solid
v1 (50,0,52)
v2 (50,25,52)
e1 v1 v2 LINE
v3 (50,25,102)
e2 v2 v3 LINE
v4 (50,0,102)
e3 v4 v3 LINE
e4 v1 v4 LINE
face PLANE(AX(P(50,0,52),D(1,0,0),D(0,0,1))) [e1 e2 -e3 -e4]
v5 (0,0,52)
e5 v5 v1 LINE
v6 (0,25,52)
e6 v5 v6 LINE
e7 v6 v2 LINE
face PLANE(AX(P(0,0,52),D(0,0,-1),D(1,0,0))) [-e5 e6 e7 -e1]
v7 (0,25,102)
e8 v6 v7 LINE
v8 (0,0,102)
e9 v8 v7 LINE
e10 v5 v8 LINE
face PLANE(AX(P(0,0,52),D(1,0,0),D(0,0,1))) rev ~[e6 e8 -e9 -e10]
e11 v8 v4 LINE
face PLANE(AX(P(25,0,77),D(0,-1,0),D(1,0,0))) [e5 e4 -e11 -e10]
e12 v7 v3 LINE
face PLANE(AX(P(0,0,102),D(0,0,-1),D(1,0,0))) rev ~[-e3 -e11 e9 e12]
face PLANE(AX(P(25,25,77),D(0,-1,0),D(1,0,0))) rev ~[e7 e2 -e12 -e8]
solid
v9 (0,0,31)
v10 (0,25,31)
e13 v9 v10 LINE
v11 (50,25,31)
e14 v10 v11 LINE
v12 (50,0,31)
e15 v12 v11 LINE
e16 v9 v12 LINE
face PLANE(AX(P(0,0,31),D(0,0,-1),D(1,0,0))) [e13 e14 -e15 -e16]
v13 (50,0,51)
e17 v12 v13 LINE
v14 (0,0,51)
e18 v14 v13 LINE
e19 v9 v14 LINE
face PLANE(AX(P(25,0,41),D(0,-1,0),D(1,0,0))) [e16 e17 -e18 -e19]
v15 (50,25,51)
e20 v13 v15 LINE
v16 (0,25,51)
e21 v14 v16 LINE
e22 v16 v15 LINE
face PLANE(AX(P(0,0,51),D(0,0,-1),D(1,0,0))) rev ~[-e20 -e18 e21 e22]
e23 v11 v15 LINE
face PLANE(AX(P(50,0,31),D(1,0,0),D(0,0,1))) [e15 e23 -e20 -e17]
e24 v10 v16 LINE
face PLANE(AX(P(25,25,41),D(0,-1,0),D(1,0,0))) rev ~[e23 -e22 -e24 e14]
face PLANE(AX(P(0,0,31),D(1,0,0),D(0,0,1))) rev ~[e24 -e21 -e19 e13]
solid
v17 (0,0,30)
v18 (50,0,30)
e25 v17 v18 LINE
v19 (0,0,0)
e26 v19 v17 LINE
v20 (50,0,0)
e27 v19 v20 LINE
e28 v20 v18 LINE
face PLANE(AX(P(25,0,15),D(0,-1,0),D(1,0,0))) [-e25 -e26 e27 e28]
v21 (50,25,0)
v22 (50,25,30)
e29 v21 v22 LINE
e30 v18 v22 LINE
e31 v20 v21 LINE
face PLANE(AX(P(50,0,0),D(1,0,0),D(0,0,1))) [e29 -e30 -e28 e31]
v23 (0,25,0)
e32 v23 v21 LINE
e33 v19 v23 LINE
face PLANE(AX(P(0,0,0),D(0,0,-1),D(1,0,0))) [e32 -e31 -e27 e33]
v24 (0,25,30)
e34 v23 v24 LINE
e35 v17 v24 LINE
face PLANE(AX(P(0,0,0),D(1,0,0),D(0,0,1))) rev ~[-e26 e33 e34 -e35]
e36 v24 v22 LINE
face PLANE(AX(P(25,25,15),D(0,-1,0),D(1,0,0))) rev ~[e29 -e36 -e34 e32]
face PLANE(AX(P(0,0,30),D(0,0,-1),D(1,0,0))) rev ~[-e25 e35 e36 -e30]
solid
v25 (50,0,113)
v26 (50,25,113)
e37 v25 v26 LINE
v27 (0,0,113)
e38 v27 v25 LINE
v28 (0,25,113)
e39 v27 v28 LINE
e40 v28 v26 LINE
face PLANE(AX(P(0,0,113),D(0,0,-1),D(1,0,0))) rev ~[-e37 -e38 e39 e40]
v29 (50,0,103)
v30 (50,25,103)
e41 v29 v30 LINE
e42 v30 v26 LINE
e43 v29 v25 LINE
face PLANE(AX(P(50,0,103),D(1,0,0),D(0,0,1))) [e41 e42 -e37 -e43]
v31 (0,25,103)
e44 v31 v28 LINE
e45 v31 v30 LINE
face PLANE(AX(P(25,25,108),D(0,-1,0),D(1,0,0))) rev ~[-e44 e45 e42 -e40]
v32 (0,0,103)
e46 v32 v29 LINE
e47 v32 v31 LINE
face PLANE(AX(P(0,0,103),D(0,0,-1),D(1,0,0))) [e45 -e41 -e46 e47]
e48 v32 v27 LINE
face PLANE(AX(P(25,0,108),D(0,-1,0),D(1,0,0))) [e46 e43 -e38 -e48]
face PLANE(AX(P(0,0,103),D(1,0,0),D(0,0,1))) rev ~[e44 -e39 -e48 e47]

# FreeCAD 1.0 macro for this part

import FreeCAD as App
import Part
import Sketcher
from FreeCAD import Vector


def add_polygon(sketch, points):
    """Adds a closed chain of lines whose ends are joined by coincident constraints."""
    first, n = sketch.GeometryCount, len(points)
    for a, b in zip(points, points[1:] + points[:1]):
        sketch.addGeometry(Part.LineSegment(App.Vector(*a, 0), App.Vector(*b, 0)), False)
    for i in range(n):
        sketch.addConstraint(Sketcher.Constraint("Coincident", first + i, 2, first + (i + 1) % n, 1))

doc = App.newDocument("Part")
body = doc.addObject("PartDesign::Body", "Body")
body.AllowCompound = True

sketch1 = body.newObject("Sketcher::SketchObject", "Sketch")
sketch1.AttachmentSupport = (doc.getObject("XZ_Plane"), [""])
sketch1.MapMode = "FlatFace"
add_polygon(sketch1, [(0, 30), (0, 0), (50, 0), (50, 30)])
add_polygon(sketch1, [(0, 51), (0, 31), (50, 31), (50, 51)])
add_polygon(sketch1, [(0, 102), (0, 52), (50, 52), (50, 102)])
add_polygon(sketch1, [(0, 113), (0, 103), (50, 103), (50, 113)])
sketch1.addConstraint(Sketcher.Constraint("Vertical", 0))
sketch1.addConstraint(Sketcher.Constraint("Horizontal", 1))
sketch1.addConstraint(Sketcher.Constraint("Vertical", 2))
sketch1.addConstraint(Sketcher.Constraint("Horizontal", 3))
sketch1.addConstraint(Sketcher.Constraint("Vertical", 4))
sketch1.addConstraint(Sketcher.Constraint("Horizontal", 5))
sketch1.addConstraint(Sketcher.Constraint("Vertical", 6))
sketch1.addConstraint(Sketcher.Constraint("Horizontal", 7))
sketch1.addConstraint(Sketcher.Constraint("Vertical", 8))
sketch1.addConstraint(Sketcher.Constraint("Horizontal", 9))
sketch1.addConstraint(Sketcher.Constraint("Vertical", 10))
sketch1.addConstraint(Sketcher.Constraint("Horizontal", 11))
sketch1.addConstraint(Sketcher.Constraint("Vertical", 12))
sketch1.addConstraint(Sketcher.Constraint("Horizontal", 13))
sketch1.addConstraint(Sketcher.Constraint("Vertical", 14))
sketch1.addConstraint(Sketcher.Constraint("Horizontal", 15))
sketch1.addConstraint(Sketcher.Constraint("Coincident", 0, 2, -1, 1))
sketch1.addConstraint(Sketcher.Constraint("PointOnObject", 4, 2, -2))
sketch1.addConstraint(Sketcher.Constraint("PointOnObject", 8, 2, -2))
sketch1.addConstraint(Sketcher.Constraint("PointOnObject", 12, 2, -2))
sketch1.addConstraint(Sketcher.Constraint("Vertical", 2, 2, 5, 2))
sketch1.addConstraint(Sketcher.Constraint("Vertical", 6, 2, 9, 2))
sketch1.addConstraint(Sketcher.Constraint("Vertical", 10, 2, 13, 2))
sketch1.addConstraint(Sketcher.Constraint("Equal", 15, 8))
sketch1.addConstraint(Sketcher.Constraint("DistanceX", 1, 1, 1, 2, 50.0))
sketch1.addConstraint(Sketcher.Constraint("DistanceY", 0, 2, 0, 1, 30.0))
sketch1.addConstraint(Sketcher.Constraint("DistanceY", 4, 2, 4, 1, 20.0))
sketch1.addConstraint(Sketcher.Constraint("DistanceY", 12, 2, 12, 1, 10.0))
sketch1.addConstraint(Sketcher.Constraint("DistanceY", -1, 1, 4, 2, 31.0))
sketch1.addConstraint(Sketcher.Constraint("DistanceY", -1, 1, 8, 2, 52.0))
sketch1.addConstraint(Sketcher.Constraint("DistanceY", -1, 1, 12, 2, 103.0))
pad1 = body.newObject("PartDesign::Pad", "Pad")
pad1.Profile = sketch1
pad1.Length = 25
pad1.Reversed = True

doc.recompute()
